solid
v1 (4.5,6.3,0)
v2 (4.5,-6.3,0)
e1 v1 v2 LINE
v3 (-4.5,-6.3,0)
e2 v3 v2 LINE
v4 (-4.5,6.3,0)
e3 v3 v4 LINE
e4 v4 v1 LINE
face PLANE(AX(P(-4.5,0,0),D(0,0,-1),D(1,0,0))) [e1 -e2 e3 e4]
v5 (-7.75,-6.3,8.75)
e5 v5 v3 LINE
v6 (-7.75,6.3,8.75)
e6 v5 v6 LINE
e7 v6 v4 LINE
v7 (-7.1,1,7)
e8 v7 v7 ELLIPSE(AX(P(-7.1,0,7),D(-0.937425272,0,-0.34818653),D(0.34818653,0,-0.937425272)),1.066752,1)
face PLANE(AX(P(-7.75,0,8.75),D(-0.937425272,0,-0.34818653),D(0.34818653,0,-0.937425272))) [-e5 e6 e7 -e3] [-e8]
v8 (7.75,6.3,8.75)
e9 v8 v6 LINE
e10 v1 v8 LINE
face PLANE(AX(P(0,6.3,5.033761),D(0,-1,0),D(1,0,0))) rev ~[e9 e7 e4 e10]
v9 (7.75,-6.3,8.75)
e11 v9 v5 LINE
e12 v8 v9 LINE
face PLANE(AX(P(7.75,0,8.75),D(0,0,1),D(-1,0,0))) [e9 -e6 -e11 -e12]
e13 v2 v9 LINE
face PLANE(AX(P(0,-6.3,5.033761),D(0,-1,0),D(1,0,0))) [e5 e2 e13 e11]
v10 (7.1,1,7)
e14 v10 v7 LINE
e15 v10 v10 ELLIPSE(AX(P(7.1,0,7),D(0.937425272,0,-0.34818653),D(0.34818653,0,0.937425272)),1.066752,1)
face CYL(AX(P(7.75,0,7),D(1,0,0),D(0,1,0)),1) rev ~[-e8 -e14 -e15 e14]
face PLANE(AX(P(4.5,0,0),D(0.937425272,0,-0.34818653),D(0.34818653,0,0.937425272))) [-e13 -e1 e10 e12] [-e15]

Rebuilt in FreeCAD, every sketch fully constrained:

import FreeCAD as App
import Part
import Sketcher

V = App.Vector

doc = App.newDocument("Part")
params = doc.addObject("Spreadsheet::Sheet", "Params")
for row, (alias, value) in enumerate([
    ("sketch1_width", "9 mm"),
    ("sketch1_width2", "15.5 mm"),
    ("pad1_length", "12.6 mm"),
    ("sketch2_diameter", "2 mm"),
], start=1):
    params.set(f"A{row}", alias)
    params.set(f"B{row}", "=" + value)
    params.setAlias(f"B{row}", alias)

body = doc.addObject("PartDesign::Body", "Body")

# Sketch on XZ plane
sketch1 = body.newObject("Sketcher::SketchObject", "Sketch")
sketch1.AttachmentSupport = (doc.getObject("XZ_Plane"), [""])
sketch1.MapMode = "FlatFace"
sketch1.addGeometry([
    Part.LineSegment(V(-4, 0, 0), V(4, 0, 0)),
    Part.LineSegment(V(4, 0, 0), V(8, 9, 0)),
    Part.LineSegment(V(8, 9, 0), V(-8, 9, 0)),
    Part.LineSegment(V(-8, 9, 0), V(-4, 0, 0)),
], False)
sketch1.addConstraint([
    Sketcher.Constraint("Coincident", 0, 2, 1, 1),
    Sketcher.Constraint("Coincident", 1, 2, 2, 1),
    Sketcher.Constraint("Coincident", 2, 2, 3, 1),
    Sketcher.Constraint("Coincident", 3, 2, 0, 1),
    Sketcher.Constraint("Horizontal", 0),
    Sketcher.Constraint("Horizontal", 2),
    Sketcher.Constraint("Symmetric", 0, 2, 3, 2, -1, 1),
    Sketcher.Constraint("Equal", 1, 3),
    Sketcher.Constraint("DistanceX", 0, 1, 0, 2, 9.0),
    Sketcher.Constraint("DistanceX", 2, 2, 2, 1, 15.5),
    Sketcher.Constraint("DistanceY", -1, 1, 1, 2, 8.75),
])
sketch1.setExpression("Constraints[8]", "Params.sketch1_width")
sketch1.setExpression("Constraints[9]", "Params.sketch1_width2")
pad1 = body.newObject("PartDesign::Pad", "Pad")
pad1.Profile = sketch1
pad1.setExpression("Length", "Params.pad1_length")
pad1.Midplane = True

# Sketch on YZ plane
sketch2 = body.newObject("Sketcher::SketchObject", "Sketch001")
sketch2.AttachmentSupport = (doc.getObject("YZ_Plane"), [""])
sketch2.MapMode = "FlatFace"
sketch2.AttachmentOffset = App.Placement(V(0, 0, 7.75), App.Rotation())
sketch2.addGeometry(Part.Circle(V(0, 7, 0), V(0, 0, 1), 1), False)
sketch2.addConstraint([
    Sketcher.Constraint("PointOnObject", 0, 3, -2),
    Sketcher.Constraint("Diameter", 0, 2.0),
    Sketcher.Constraint("DistanceY", -1, 1, 0, 3, 7.0),
])
sketch2.setExpression("Constraints[1]", "Params.sketch2_diameter")
pocket1 = body.newObject("PartDesign::Pocket", "Pocket")
pocket1.Profile = sketch2
pocket1.Type = "ThroughAll"

doc.recompute()
